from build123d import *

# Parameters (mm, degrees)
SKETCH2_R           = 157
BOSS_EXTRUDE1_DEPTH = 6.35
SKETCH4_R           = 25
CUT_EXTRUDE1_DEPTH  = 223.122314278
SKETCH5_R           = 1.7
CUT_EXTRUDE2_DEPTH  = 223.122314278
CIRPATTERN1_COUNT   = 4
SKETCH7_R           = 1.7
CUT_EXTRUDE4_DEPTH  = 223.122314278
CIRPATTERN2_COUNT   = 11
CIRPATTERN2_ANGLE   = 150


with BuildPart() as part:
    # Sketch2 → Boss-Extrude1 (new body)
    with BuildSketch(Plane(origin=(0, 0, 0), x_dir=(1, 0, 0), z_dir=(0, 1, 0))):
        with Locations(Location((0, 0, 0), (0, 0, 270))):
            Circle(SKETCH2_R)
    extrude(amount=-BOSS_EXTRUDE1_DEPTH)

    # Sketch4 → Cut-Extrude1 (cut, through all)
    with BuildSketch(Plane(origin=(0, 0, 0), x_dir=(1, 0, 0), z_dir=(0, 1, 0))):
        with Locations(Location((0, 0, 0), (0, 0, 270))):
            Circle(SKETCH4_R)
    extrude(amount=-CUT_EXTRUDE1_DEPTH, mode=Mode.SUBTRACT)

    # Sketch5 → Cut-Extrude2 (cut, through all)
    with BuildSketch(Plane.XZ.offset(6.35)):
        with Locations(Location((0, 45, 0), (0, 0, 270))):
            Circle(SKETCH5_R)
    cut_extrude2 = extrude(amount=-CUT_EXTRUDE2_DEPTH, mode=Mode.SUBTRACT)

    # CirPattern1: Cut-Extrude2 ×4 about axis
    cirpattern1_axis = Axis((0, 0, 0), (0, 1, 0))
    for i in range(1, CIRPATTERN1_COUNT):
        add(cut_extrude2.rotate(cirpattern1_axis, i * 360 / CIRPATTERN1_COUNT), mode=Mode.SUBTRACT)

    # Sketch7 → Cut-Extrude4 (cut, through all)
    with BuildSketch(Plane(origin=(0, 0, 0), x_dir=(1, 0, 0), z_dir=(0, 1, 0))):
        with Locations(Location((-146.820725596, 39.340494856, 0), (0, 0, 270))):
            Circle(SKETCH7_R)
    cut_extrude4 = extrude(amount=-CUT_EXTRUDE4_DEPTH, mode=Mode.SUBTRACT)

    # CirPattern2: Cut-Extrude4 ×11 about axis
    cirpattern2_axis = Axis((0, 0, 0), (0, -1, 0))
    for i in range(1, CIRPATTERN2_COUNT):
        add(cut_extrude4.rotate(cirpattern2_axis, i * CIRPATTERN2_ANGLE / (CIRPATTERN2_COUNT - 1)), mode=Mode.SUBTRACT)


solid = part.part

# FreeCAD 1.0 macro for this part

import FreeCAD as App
import Part
import Sketcher

V = App.Vector
Q = App.Units.Quantity

doc = App.newDocument("Part")
body = doc.addObject("PartDesign::Body", "Body")

# Sketch on XZ plane
sketch1 = doc.addObject("Sketcher::SketchObject", "Sketch")
body.addObject(sketch1)
sketch1.AttachmentSupport = (doc.XZ_Plane, [""])
sketch1.MapMode = "FlatFace"
sketch1.addGeometry(Part.Circle(V(0, 0, 0), V(0, 0, 1), 157), False)
sketch1.addConstraint(Sketcher.Constraint("Coincident", 0, 3, -1, 1))
sketch1.addConstraint(Sketcher.Constraint("Diameter", 0, Q("314 mm")))
pad1 = doc.addObject("PartDesign::Pad", "Pad")
body.addObject(pad1)
pad1.Profile = sketch1
pad1.Length = 6.35

# Sketch on XZ plane
sketch2 = doc.addObject("Sketcher::SketchObject", "Sketch001")
body.addObject(sketch2)
sketch2.AttachmentSupport = (doc.XZ_Plane, [""])
sketch2.MapMode = "FlatFace"
sketch2.addGeometry(Part.Circle(V(0, 0, 0), V(0, 0, 1), 25), False)
sketch2.addConstraint(Sketcher.Constraint("Coincident", 0, 3, -1, 1))
sketch2.addConstraint(Sketcher.Constraint("Diameter", 0, Q("50 mm")))
pocket1 = doc.addObject("PartDesign::Pocket", "Pocket")
body.addObject(pocket1)
pocket1.Profile = sketch2
pocket1.Type = "ThroughAll"
pocket1.Reversed = True

# Sketch on XZ plane
sketch3 = doc.addObject("Sketcher::SketchObject", "Sketch002")
body.addObject(sketch3)
sketch3.AttachmentSupport = (doc.XZ_Plane, [""])
sketch3.MapMode = "FlatFace"
sketch3.AttachmentOffset = App.Placement(V(0, 0, 6.35), App.Rotation())
sketch3.addGeometry(Part.Circle(V(0, 45, 0), V(0, 0, 1), 1.7), False)
sketch3.addConstraint(Sketcher.Constraint("PointOnObject", 0, 3, -2))
sketch3.addConstraint(Sketcher.Constraint("Diameter", 0, Q("3.4 mm")))
sketch3.addConstraint(Sketcher.Constraint("DistanceY", -1, 1, 0, 3, Q("45 mm")))
pocket2 = doc.addObject("PartDesign::Pocket", "Pocket001")
body.addObject(pocket2)
pocket2.Profile = sketch3
pocket2.Type = "ThroughAll"
doc.recompute()

polarpattern = doc.addObject("PartDesign::PolarPattern", "PolarPattern")
body.addObject(polarpattern)
polarpattern.Originals = [pocket2]
polarpattern.Axis = (doc.Y_Axis, [""])
polarpattern.Angle = 360
polarpattern.Occurrences = 4
body.Tip = polarpattern

# Sketch on XZ plane
sketch4 = doc.addObject("Sketcher::SketchObject", "Sketch003")
body.addObject(sketch4)
sketch4.AttachmentSupport = (doc.XZ_Plane, [""])
sketch4.MapMode = "FlatFace"
sketch4.addGeometry(Part.Circle(V(-146.8, -39.3, 0), V(0, 0, 1), 1.7), False)
sketch4.addConstraint(Sketcher.Constraint("Diameter", 0, Q("3.4 mm")))
sketch4.addConstraint(Sketcher.Constraint("DistanceX", 0, 3, -1, 1, Q("146.820726 mm")))
sketch4.addConstraint(Sketcher.Constraint("DistanceY", 0, 3, -1, 1, Q("39.340495 mm")))
pocket3 = doc.addObject("PartDesign::Pocket", "Pocket002")
body.addObject(pocket3)
pocket3.Profile = sketch4
pocket3.Type = "ThroughAll"
pocket3.Reversed = True
doc.recompute()

polarpattern2 = doc.addObject("PartDesign::PolarPattern", "PolarPattern001")
body.addObject(polarpattern2)
polarpattern2.Originals = [pocket3]
polarpattern2.Axis = (doc.Y_Axis, [""])
polarpattern2.Angle = 150
polarpattern2.Occurrences = 11
polarpattern2.Reversed = True
body.Tip = polarpattern2

doc.recompute()
